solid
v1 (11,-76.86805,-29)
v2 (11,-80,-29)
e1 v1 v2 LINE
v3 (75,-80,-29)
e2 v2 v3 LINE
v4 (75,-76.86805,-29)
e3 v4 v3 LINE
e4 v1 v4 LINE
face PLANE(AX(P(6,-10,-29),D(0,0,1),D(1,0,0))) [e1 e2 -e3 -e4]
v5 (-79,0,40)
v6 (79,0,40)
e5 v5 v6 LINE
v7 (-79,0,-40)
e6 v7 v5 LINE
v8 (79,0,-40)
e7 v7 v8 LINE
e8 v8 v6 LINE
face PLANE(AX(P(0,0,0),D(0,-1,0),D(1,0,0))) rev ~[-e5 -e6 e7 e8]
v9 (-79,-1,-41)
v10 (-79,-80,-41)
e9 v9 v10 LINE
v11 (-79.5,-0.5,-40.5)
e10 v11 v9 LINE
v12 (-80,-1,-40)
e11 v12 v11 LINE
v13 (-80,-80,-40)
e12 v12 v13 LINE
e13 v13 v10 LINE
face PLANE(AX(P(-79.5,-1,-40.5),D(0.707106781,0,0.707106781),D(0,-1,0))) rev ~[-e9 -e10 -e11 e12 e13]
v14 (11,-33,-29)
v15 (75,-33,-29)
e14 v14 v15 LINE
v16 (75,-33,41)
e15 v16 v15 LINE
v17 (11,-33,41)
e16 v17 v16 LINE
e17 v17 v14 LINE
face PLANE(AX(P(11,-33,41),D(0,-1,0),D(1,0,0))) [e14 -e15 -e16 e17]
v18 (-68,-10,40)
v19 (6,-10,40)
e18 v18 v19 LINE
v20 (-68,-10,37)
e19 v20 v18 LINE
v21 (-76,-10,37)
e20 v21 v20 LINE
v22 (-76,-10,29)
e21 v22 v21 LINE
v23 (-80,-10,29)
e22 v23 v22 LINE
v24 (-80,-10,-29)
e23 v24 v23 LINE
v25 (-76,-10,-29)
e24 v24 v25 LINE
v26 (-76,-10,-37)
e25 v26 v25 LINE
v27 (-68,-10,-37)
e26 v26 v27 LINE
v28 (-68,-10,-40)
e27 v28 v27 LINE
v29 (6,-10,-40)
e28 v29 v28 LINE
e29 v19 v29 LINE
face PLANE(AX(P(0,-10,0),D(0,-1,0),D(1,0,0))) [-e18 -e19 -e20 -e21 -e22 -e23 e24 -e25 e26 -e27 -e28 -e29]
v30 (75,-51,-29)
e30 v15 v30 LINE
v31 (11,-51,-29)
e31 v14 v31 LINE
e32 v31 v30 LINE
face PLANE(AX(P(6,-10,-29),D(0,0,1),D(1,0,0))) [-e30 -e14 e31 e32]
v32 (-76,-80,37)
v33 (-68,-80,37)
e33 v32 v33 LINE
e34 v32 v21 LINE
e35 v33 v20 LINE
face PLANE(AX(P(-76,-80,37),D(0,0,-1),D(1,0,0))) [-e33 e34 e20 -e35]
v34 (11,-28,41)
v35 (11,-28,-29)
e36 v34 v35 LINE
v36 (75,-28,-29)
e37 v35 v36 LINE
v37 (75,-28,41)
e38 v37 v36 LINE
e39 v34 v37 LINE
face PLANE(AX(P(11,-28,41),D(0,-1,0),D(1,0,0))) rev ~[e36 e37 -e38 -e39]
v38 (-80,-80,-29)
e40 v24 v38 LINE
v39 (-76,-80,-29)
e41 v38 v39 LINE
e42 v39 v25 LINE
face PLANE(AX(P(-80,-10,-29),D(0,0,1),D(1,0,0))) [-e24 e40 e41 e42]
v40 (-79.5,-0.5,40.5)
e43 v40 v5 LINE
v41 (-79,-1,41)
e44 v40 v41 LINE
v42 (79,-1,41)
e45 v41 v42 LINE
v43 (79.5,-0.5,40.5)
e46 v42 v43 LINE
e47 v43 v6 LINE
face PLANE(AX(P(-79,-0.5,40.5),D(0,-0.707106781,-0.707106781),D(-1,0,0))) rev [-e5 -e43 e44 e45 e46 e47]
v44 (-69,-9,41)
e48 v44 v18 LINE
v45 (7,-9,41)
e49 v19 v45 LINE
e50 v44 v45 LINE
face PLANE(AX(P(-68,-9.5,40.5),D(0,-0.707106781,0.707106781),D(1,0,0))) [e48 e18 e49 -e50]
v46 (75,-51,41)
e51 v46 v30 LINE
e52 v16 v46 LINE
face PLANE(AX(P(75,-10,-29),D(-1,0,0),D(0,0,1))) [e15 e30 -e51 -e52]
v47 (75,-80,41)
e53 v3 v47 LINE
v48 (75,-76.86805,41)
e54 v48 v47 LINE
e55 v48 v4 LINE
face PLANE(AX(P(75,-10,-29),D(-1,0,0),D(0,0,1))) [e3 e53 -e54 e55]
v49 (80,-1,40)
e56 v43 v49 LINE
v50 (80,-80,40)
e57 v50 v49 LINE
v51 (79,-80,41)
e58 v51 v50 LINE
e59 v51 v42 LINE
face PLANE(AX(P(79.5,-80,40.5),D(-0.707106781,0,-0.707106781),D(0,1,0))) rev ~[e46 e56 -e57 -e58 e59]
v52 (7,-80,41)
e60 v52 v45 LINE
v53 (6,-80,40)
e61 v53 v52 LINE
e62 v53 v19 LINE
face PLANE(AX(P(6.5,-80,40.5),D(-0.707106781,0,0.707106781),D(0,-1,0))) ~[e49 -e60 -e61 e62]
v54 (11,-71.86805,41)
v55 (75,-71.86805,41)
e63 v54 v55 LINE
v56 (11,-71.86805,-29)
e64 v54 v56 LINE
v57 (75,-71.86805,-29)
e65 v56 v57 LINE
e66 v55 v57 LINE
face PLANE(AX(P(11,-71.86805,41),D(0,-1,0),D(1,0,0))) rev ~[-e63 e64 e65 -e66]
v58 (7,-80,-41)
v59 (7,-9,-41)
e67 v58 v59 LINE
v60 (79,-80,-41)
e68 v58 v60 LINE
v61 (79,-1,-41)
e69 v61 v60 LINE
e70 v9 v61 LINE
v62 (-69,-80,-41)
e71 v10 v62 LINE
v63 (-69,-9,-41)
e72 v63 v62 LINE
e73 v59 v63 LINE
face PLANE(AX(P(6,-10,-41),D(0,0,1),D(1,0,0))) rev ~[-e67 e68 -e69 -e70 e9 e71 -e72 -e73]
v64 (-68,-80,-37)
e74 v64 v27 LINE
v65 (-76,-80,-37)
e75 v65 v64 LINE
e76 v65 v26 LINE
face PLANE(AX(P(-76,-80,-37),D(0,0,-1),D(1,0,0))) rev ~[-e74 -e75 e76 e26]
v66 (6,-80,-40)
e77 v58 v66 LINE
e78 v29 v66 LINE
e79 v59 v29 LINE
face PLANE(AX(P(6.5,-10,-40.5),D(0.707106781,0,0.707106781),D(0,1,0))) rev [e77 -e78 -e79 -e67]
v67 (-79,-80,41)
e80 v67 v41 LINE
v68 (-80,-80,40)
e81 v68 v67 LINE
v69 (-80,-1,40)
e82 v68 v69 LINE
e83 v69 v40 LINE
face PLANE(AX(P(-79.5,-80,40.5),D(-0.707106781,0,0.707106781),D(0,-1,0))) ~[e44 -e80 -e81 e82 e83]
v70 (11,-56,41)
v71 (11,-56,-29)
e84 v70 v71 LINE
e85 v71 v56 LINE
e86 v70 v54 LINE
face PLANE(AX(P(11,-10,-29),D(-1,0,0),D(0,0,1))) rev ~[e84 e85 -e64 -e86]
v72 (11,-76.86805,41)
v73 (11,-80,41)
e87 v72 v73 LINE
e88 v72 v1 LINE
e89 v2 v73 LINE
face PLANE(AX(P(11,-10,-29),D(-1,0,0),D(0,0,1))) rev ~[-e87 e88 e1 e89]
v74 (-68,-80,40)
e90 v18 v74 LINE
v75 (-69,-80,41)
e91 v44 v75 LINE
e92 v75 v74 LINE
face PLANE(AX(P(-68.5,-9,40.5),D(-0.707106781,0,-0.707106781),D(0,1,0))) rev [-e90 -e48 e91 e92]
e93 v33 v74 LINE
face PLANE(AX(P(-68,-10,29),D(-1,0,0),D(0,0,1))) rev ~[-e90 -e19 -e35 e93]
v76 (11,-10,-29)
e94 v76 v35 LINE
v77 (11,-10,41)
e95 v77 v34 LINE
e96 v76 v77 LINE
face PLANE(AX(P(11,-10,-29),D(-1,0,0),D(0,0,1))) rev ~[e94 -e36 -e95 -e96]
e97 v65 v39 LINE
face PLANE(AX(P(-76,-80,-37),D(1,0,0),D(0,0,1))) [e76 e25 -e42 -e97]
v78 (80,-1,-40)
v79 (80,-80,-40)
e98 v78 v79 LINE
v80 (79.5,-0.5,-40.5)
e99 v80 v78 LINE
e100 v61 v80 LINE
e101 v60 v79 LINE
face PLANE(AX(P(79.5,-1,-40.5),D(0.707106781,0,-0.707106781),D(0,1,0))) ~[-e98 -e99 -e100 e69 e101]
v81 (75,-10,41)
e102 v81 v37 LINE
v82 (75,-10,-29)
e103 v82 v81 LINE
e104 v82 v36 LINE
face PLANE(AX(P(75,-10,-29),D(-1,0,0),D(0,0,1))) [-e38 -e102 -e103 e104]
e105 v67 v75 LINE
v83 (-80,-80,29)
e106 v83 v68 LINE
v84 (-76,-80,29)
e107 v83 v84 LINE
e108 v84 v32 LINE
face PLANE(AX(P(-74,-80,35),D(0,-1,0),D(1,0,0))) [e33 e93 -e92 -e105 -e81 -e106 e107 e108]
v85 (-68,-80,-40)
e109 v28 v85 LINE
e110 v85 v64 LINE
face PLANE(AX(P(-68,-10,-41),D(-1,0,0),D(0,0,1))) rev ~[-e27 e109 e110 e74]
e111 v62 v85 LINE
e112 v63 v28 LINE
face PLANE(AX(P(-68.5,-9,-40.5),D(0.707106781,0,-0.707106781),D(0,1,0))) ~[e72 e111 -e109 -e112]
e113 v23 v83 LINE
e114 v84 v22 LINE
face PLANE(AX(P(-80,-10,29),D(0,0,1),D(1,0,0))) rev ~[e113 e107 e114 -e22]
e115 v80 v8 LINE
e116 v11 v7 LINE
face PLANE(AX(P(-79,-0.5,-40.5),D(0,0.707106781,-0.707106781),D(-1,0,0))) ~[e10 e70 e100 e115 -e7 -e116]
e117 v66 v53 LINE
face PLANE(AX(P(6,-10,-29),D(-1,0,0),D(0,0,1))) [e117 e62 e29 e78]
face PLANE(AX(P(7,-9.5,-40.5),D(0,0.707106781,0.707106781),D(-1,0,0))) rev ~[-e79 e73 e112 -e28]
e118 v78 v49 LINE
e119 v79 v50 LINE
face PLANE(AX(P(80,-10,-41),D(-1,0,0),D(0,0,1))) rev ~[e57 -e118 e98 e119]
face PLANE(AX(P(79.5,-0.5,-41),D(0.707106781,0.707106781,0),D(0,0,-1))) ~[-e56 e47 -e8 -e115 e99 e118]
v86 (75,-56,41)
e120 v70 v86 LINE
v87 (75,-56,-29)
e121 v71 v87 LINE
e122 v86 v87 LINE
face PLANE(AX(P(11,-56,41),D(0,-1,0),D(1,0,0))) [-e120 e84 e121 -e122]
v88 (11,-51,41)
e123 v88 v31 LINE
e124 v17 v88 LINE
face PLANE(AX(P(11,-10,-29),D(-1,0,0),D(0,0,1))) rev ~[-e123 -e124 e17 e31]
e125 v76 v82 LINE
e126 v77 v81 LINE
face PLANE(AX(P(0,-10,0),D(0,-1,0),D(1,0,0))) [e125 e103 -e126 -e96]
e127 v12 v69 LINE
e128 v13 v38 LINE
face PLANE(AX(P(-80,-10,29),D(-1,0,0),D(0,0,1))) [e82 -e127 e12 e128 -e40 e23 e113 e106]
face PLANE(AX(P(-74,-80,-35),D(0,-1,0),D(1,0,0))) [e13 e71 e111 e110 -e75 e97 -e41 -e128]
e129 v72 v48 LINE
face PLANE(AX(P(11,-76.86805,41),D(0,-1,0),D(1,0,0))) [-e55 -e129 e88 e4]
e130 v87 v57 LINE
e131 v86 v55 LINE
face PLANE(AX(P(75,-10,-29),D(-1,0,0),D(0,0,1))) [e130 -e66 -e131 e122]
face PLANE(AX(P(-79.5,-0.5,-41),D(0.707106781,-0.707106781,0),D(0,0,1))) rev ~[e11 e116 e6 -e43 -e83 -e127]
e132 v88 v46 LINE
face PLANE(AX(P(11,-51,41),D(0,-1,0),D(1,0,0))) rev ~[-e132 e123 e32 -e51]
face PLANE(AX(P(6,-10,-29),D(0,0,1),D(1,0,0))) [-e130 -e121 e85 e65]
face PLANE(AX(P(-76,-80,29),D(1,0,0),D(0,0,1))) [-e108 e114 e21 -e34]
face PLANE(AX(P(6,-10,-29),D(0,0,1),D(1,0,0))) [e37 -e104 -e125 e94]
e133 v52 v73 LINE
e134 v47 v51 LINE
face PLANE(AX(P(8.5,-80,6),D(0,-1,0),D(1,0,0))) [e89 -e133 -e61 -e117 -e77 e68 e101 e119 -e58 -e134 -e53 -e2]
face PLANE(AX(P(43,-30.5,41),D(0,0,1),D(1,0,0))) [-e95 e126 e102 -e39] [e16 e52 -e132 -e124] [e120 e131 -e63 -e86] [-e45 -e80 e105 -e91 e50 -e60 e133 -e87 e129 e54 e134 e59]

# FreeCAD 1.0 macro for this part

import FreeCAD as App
import Part
import Sketcher
Q = App.Units.Quantity


def edges_at(feature, points):
    """Names of the edges that pass closest to the given points."""
    edges = feature.Shape.Edges
    near = lambda p: min(range(len(edges)), key=lambda i: edges[i].distToShape(Part.Vertex(*p))[0])
    return sorted({f"Edge{near(p) + 1}" for p in points})


def add_polygon(sketch, points):
    """Adds a closed chain of lines whose ends are joined by coincident constraints."""
    first, n = sketch.GeometryCount, len(points)
    for a, b in zip(points, points[1:] + points[:1]):
        sketch.addGeometry(Part.LineSegment(App.Vector(*a, 0), App.Vector(*b, 0)), False)
    for i in range(n):
        sketch.addConstraint(Sketcher.Constraint("Coincident", first + i, 2, first + (i + 1) % n, 1))

doc = App.newDocument("Part")
body = doc.addObject("PartDesign::Body", "Body")

# Sketch on XZ plane
sketch1 = body.newObject("Sketcher::SketchObject", "Sketch")
sketch1.AttachmentSupport = (doc.getObject("XZ_Plane"), [""])
sketch1.MapMode = "FlatFace"
add_polygon(sketch1, [(-80, 41), (-80, -41), (80, -41), (80, 41)])  # lines 0-3
sketch1.addConstraint([
    Sketcher.Constraint("Vertical", 0),
    Sketcher.Constraint("Horizontal", 1),
    Sketcher.Constraint("Vertical", 2),
    Sketcher.Constraint("Horizontal", 3),
    Sketcher.Constraint("Symmetric", 0, 2, 2, 2, -1, 1),
    Sketcher.Constraint("DistanceX", 1, 1, 1, 2, Q("160 mm")),
    Sketcher.Constraint("DistanceY", 0, 2, 0, 1, Q("82 mm")),
])
pad1 = body.newObject("PartDesign::Pad", "Pad")
pad1.Profile = sketch1
pad1.Length = 10

# Sketch on XZ plane
sketch2 = body.newObject("Sketcher::SketchObject", "Sketch001")
sketch2.AttachmentSupport = (doc.getObject("XZ_Plane"), [""])
sketch2.MapMode = "FlatFace"
sketch2.AttachmentOffset = App.Placement(App.Vector(0, 0, 10), App.Rotation())
add_polygon(sketch2, [(-80, 41), (-80, 29), (-68, 29), (-68, 41)])  # lines 0-3
add_polygon(sketch2, [(-80, -29), (-80, -41), (-68, -41), (-68, -29)])  # lines 4-7
sketch2.addConstraint([
    Sketcher.Constraint("Vertical", 0),
    Sketcher.Constraint("Horizontal", 1),
    Sketcher.Constraint("Vertical", 2),
    Sketcher.Constraint("Horizontal", 3),
    Sketcher.Constraint("Vertical", 4),
    Sketcher.Constraint("Horizontal", 5),
    Sketcher.Constraint("Vertical", 6),
    Sketcher.Constraint("Horizontal", 7),
    Sketcher.Constraint("Symmetric", 3, 2, 4, 2, -1),
    Sketcher.Constraint("Symmetric", 1, 2, 6, 2, -1),
    Sketcher.Constraint("Equal", 7, 0),
    Sketcher.Constraint("DistanceX", 1, 1, 1, 2, Q("12 mm")),
    Sketcher.Constraint("DistanceX", 0, 2, -1, 1, Q("80 mm")),
    Sketcher.Constraint("DistanceY", -1, 1, 0, 2, Q("29 mm")),
])
pad2 = body.newObject("PartDesign::Pad", "Pad001")
pad2.Profile = sketch2
pad2.Length = 70

# Sketch on XZ plane
sketch3 = body.newObject("Sketcher::SketchObject", "Sketch002")
sketch3.AttachmentSupport = (doc.getObject("XZ_Plane"), [""])
sketch3.MapMode = "FlatFace"
sketch3.AttachmentOffset = App.Placement(App.Vector(0, 0, 10), App.Rotation())
add_polygon(sketch3, [(6, -29), (6, -41), (80, -41), (80, -29)])  # lines 0-3
sketch3.addConstraint([
    Sketcher.Constraint("Vertical", 0),
    Sketcher.Constraint("Horizontal", 1),
    Sketcher.Constraint("Vertical", 2),
    Sketcher.Constraint("Horizontal", 3),
    Sketcher.Constraint("DistanceX", 1, 1, 1, 2, Q("74 mm")),
    Sketcher.Constraint("DistanceY", 0, 2, 0, 1, Q("12 mm")),
    Sketcher.Constraint("DistanceX", -1, 1, 0, 2, Q("6 mm")),
    Sketcher.Constraint("DistanceY", 0, 2, -1, 1, Q("41 mm")),
])
pad3 = body.newObject("PartDesign::Pad", "Pad002")
pad3.Profile = sketch3
pad3.Length = 70

# Sketch on XZ plane
sketch4 = body.newObject("Sketcher::SketchObject", "Sketch003")
sketch4.AttachmentSupport = (doc.getObject("XZ_Plane"), [""])
sketch4.MapMode = "FlatFace"
sketch4.AttachmentOffset = App.Placement(App.Vector(0, 0, 10), App.Rotation())
add_polygon(sketch4, [(6, 41), (6, -29), (11, -29), (11, 41)])  # lines 0-3
add_polygon(sketch4, [(75, 41), (75, -29), (80, -29), (80, 41)])  # lines 4-7
sketch4.addConstraint([
    Sketcher.Constraint("Vertical", 0),
    Sketcher.Constraint("Horizontal", 1),
    Sketcher.Constraint("Vertical", 2),
    Sketcher.Constraint("Horizontal", 3),
    Sketcher.Constraint("Vertical", 4),
    Sketcher.Constraint("Horizontal", 5),
    Sketcher.Constraint("Vertical", 6),
    Sketcher.Constraint("Horizontal", 7),
    Sketcher.Constraint("Horizontal", 1, 2, 4, 2),
    Sketcher.Constraint("Horizontal", 3, 2, 6, 2),
    Sketcher.Constraint("Equal", 3, 5),
    Sketcher.Constraint("DistanceX", 1, 1, 1, 2, Q("5 mm")),
    Sketcher.Constraint("DistanceY", 0, 2, 0, 1, Q("70 mm")),
    Sketcher.Constraint("DistanceX", -1, 1, 0, 2, Q("6 mm")),
    Sketcher.Constraint("DistanceY", 0, 2, -1, 1, Q("29 mm")),
    Sketcher.Constraint("DistanceX", -1, 1, 4, 2, Q("75 mm")),
])
pad4 = body.newObject("PartDesign::Pad", "Pad003")
pad4.Profile = sketch4
pad4.Length = 70

# Sketch on XY plane
sketch5 = body.newObject("Sketcher::SketchObject", "Sketch004")
sketch5.AttachmentSupport = (doc.getObject("XY_Plane"), [""])
sketch5.MapMode = "FlatFace"
sketch5.AttachmentOffset = App.Placement(App.Vector(0, 0, 41), App.Rotation())
add_polygon(sketch5, [(11, -28), (11, -33), (75, -33), (75, -28)])  # lines 0-3
add_polygon(sketch5, [(11, -51), (11, -56), (75, -56), (75, -51)])  # lines 4-7
add_polygon(sketch5, [(11, -72), (11, -77), (75, -77), (75, -72)])  # lines 8-11
sketch5.addConstraint([
    Sketcher.Constraint("Vertical", 0),
    Sketcher.Constraint("Horizontal", 1),
    Sketcher.Constraint("Vertical", 2),
    Sketcher.Constraint("Horizontal", 3),
    Sketcher.Constraint("Vertical", 4),
    Sketcher.Constraint("Horizontal", 5),
    Sketcher.Constraint("Vertical", 6),
    Sketcher.Constraint("Horizontal", 7),
    Sketcher.Constraint("Vertical", 8),
    Sketcher.Constraint("Horizontal", 9),
    Sketcher.Constraint("Vertical", 10),
    Sketcher.Constraint("Horizontal", 11),
    Sketcher.Constraint("Vertical", 3, 2, 4, 2),
    Sketcher.Constraint("Vertical", 2, 2, 5, 2),
    Sketcher.Constraint("Vertical", 7, 2, 8, 2),
    Sketcher.Constraint("Vertical", 6, 2, 9, 2),
    Sketcher.Constraint("Equal", 2, 4),
    Sketcher.Constraint("Equal", 6, 8),
    Sketcher.Constraint("DistanceX", 1, 1, 1, 2, Q("64 mm")),
    Sketcher.Constraint("DistanceY", 0, 2, 0, 1, Q("5 mm")),
    Sketcher.Constraint("DistanceX", -1, 1, 0, 2, Q("11 mm")),
    Sketcher.Constraint("DistanceY", 0, 2, -1, 1, Q("33 mm")),
    Sketcher.Constraint("DistanceY", 4, 2, -1, 1, Q("56 mm")),
    Sketcher.Constraint("DistanceY", 8, 2, -1, 1, Q("76.86805 mm")),
])
pad5 = body.newObject("PartDesign::Pad", "Pad004")
pad5.Profile = sketch5
pad5.Length = 80
pad5.Reversed = True

# Sketch on XZ plane
sketch6 = body.newObject("Sketcher::SketchObject", "Sketch005")
sketch6.AttachmentSupport = (doc.getObject("XZ_Plane"), [""])
sketch6.MapMode = "FlatFace"
sketch6.AttachmentOffset = App.Placement(App.Vector(0, 0, 80), App.Rotation())
add_polygon(sketch6, [(-76, 37), (-76, 29), (-68, 29), (-68, 37)])  # lines 0-3
sketch6.addConstraint([
    Sketcher.Constraint("Vertical", 0),
    Sketcher.Constraint("Horizontal", 1),
    Sketcher.Constraint("Vertical", 2),
    Sketcher.Constraint("Horizontal", 3),
    Sketcher.Constraint("Equal", 3, 0),
    Sketcher.Constraint("DistanceX", 1, 1, 1, 2, Q("8 mm")),
    Sketcher.Constraint("DistanceX", 0, 2, -1, 1, Q("76 mm")),
    Sketcher.Constraint("DistanceY", -1, 1, 0, 2, Q("29 mm")),
])
pocket1 = body.newObject("PartDesign::Pocket", "Pocket")
pocket1.Profile = sketch6
pocket1.Length = 70

# Sketch on XZ plane
sketch7 = body.newObject("Sketcher::SketchObject", "Sketch006")
sketch7.AttachmentSupport = (doc.getObject("XZ_Plane"), [""])
sketch7.MapMode = "FlatFace"
sketch7.AttachmentOffset = App.Placement(App.Vector(0, 0, 80), App.Rotation())
add_polygon(sketch7, [(-76, -29), (-76, -37), (-68, -37), (-68, -29)])  # lines 0-3
sketch7.addConstraint([
    Sketcher.Constraint("Vertical", 0),
    Sketcher.Constraint("Horizontal", 1),
    Sketcher.Constraint("Vertical", 2),
    Sketcher.Constraint("Horizontal", 3),
    Sketcher.Constraint("Equal", 3, 0),
    Sketcher.Constraint("DistanceX", 1, 1, 1, 2, Q("8 mm")),
    Sketcher.Constraint("DistanceX", 0, 2, -1, 1, Q("76 mm")),
    Sketcher.Constraint("DistanceY", 0, 2, -1, 1, Q("37 mm")),
])
pocket2 = body.newObject("PartDesign::Pocket", "Pocket001")
pocket2.Profile = sketch7
pocket2.Length = 70
doc.recompute()

chamfer = body.newObject("PartDesign::Chamfer", "Chamfer")
chamfer.Base = (pocket2, edges_at(pocket2, [(-80, 0, 0)]))
chamfer.Size = 1
doc.recompute()

chamfer2 = body.newObject("PartDesign::Chamfer", "Chamfer001")
chamfer2.Base = (chamfer, edges_at(chamfer, [(0.5, 0, 41)]))
chamfer2.Size = 1
doc.recompute()

chamfer3 = body.newObject("PartDesign::Chamfer", "Chamfer002")
chamfer3.Base = (chamfer2, edges_at(chamfer2, [(80, 0, -0.5)]))
chamfer3.Size = 1
doc.recompute()

chamfer4 = body.newObject("PartDesign::Chamfer", "Chamfer003")
chamfer4.Base = (chamfer3, edges_at(chamfer3, [(0, 0, -41)]))
chamfer4.Size = 1
doc.recompute()

chamfer5 = body.newObject("PartDesign::Chamfer", "Chamfer004")
chamfer5.Base = (chamfer4, edges_at(chamfer4, [(-80, -40.5, 41)]))
chamfer5.Size = 1
doc.recompute()

chamfer6 = body.newObject("PartDesign::Chamfer", "Chamfer005")
chamfer6.Base = (chamfer5, edges_at(chamfer5, [(80, -40.5, 41)]))
chamfer6.Size = 1
doc.recompute()

chamfer7 = body.newObject("PartDesign::Chamfer", "Chamfer006")
chamfer7.Base = (chamfer6, edges_at(chamfer6, [(-80, -40.5, -41)]))
chamfer7.Size = 1
doc.recompute()

chamfer8 = body.newObject("PartDesign::Chamfer", "Chamfer007")
chamfer8.Base = (chamfer7, edges_at(chamfer7, [(80, -40.5, -41)]))
chamfer8.Size = 1
doc.recompute()

chamfer9 = body.newObject("PartDesign::Chamfer", "Chamfer008")
chamfer9.Base = (chamfer8, edges_at(chamfer8, [(6, -45, -41)]))
chamfer9.Size = 1
doc.recompute()

chamfer10 = body.newObject("PartDesign::Chamfer", "Chamfer009")
chamfer10.Base = (chamfer9, edges_at(chamfer9, [(-30.5, -10, -41)]))
chamfer10.Size = 1
doc.recompute()

chamfer11 = body.newObject("PartDesign::Chamfer", "Chamfer010")
chamfer11.Base = (chamfer10, edges_at(chamfer10, [(-68, -44.5, -41)]))
chamfer11.Size = 1
doc.recompute()

chamfer12 = body.newObject("PartDesign::Chamfer", "Chamfer011")
chamfer12.Base = (chamfer11, edges_at(chamfer11, [(-31, -10, 41)]))
chamfer12.Size = 1
doc.recompute()

chamfer13 = body.newObject("PartDesign::Chamfer", "Chamfer012")
chamfer13.Base = (chamfer12, edges_at(chamfer12, [(-68, -44.5, 41)]))
chamfer13.Size = 1
doc.recompute()

chamfer14 = body.newObject("PartDesign::Chamfer", "Chamfer013")
chamfer14.Base = (chamfer13, edges_at(chamfer13, [(6, -44.5, 41)]))
chamfer14.Size = 1

doc.recompute()
